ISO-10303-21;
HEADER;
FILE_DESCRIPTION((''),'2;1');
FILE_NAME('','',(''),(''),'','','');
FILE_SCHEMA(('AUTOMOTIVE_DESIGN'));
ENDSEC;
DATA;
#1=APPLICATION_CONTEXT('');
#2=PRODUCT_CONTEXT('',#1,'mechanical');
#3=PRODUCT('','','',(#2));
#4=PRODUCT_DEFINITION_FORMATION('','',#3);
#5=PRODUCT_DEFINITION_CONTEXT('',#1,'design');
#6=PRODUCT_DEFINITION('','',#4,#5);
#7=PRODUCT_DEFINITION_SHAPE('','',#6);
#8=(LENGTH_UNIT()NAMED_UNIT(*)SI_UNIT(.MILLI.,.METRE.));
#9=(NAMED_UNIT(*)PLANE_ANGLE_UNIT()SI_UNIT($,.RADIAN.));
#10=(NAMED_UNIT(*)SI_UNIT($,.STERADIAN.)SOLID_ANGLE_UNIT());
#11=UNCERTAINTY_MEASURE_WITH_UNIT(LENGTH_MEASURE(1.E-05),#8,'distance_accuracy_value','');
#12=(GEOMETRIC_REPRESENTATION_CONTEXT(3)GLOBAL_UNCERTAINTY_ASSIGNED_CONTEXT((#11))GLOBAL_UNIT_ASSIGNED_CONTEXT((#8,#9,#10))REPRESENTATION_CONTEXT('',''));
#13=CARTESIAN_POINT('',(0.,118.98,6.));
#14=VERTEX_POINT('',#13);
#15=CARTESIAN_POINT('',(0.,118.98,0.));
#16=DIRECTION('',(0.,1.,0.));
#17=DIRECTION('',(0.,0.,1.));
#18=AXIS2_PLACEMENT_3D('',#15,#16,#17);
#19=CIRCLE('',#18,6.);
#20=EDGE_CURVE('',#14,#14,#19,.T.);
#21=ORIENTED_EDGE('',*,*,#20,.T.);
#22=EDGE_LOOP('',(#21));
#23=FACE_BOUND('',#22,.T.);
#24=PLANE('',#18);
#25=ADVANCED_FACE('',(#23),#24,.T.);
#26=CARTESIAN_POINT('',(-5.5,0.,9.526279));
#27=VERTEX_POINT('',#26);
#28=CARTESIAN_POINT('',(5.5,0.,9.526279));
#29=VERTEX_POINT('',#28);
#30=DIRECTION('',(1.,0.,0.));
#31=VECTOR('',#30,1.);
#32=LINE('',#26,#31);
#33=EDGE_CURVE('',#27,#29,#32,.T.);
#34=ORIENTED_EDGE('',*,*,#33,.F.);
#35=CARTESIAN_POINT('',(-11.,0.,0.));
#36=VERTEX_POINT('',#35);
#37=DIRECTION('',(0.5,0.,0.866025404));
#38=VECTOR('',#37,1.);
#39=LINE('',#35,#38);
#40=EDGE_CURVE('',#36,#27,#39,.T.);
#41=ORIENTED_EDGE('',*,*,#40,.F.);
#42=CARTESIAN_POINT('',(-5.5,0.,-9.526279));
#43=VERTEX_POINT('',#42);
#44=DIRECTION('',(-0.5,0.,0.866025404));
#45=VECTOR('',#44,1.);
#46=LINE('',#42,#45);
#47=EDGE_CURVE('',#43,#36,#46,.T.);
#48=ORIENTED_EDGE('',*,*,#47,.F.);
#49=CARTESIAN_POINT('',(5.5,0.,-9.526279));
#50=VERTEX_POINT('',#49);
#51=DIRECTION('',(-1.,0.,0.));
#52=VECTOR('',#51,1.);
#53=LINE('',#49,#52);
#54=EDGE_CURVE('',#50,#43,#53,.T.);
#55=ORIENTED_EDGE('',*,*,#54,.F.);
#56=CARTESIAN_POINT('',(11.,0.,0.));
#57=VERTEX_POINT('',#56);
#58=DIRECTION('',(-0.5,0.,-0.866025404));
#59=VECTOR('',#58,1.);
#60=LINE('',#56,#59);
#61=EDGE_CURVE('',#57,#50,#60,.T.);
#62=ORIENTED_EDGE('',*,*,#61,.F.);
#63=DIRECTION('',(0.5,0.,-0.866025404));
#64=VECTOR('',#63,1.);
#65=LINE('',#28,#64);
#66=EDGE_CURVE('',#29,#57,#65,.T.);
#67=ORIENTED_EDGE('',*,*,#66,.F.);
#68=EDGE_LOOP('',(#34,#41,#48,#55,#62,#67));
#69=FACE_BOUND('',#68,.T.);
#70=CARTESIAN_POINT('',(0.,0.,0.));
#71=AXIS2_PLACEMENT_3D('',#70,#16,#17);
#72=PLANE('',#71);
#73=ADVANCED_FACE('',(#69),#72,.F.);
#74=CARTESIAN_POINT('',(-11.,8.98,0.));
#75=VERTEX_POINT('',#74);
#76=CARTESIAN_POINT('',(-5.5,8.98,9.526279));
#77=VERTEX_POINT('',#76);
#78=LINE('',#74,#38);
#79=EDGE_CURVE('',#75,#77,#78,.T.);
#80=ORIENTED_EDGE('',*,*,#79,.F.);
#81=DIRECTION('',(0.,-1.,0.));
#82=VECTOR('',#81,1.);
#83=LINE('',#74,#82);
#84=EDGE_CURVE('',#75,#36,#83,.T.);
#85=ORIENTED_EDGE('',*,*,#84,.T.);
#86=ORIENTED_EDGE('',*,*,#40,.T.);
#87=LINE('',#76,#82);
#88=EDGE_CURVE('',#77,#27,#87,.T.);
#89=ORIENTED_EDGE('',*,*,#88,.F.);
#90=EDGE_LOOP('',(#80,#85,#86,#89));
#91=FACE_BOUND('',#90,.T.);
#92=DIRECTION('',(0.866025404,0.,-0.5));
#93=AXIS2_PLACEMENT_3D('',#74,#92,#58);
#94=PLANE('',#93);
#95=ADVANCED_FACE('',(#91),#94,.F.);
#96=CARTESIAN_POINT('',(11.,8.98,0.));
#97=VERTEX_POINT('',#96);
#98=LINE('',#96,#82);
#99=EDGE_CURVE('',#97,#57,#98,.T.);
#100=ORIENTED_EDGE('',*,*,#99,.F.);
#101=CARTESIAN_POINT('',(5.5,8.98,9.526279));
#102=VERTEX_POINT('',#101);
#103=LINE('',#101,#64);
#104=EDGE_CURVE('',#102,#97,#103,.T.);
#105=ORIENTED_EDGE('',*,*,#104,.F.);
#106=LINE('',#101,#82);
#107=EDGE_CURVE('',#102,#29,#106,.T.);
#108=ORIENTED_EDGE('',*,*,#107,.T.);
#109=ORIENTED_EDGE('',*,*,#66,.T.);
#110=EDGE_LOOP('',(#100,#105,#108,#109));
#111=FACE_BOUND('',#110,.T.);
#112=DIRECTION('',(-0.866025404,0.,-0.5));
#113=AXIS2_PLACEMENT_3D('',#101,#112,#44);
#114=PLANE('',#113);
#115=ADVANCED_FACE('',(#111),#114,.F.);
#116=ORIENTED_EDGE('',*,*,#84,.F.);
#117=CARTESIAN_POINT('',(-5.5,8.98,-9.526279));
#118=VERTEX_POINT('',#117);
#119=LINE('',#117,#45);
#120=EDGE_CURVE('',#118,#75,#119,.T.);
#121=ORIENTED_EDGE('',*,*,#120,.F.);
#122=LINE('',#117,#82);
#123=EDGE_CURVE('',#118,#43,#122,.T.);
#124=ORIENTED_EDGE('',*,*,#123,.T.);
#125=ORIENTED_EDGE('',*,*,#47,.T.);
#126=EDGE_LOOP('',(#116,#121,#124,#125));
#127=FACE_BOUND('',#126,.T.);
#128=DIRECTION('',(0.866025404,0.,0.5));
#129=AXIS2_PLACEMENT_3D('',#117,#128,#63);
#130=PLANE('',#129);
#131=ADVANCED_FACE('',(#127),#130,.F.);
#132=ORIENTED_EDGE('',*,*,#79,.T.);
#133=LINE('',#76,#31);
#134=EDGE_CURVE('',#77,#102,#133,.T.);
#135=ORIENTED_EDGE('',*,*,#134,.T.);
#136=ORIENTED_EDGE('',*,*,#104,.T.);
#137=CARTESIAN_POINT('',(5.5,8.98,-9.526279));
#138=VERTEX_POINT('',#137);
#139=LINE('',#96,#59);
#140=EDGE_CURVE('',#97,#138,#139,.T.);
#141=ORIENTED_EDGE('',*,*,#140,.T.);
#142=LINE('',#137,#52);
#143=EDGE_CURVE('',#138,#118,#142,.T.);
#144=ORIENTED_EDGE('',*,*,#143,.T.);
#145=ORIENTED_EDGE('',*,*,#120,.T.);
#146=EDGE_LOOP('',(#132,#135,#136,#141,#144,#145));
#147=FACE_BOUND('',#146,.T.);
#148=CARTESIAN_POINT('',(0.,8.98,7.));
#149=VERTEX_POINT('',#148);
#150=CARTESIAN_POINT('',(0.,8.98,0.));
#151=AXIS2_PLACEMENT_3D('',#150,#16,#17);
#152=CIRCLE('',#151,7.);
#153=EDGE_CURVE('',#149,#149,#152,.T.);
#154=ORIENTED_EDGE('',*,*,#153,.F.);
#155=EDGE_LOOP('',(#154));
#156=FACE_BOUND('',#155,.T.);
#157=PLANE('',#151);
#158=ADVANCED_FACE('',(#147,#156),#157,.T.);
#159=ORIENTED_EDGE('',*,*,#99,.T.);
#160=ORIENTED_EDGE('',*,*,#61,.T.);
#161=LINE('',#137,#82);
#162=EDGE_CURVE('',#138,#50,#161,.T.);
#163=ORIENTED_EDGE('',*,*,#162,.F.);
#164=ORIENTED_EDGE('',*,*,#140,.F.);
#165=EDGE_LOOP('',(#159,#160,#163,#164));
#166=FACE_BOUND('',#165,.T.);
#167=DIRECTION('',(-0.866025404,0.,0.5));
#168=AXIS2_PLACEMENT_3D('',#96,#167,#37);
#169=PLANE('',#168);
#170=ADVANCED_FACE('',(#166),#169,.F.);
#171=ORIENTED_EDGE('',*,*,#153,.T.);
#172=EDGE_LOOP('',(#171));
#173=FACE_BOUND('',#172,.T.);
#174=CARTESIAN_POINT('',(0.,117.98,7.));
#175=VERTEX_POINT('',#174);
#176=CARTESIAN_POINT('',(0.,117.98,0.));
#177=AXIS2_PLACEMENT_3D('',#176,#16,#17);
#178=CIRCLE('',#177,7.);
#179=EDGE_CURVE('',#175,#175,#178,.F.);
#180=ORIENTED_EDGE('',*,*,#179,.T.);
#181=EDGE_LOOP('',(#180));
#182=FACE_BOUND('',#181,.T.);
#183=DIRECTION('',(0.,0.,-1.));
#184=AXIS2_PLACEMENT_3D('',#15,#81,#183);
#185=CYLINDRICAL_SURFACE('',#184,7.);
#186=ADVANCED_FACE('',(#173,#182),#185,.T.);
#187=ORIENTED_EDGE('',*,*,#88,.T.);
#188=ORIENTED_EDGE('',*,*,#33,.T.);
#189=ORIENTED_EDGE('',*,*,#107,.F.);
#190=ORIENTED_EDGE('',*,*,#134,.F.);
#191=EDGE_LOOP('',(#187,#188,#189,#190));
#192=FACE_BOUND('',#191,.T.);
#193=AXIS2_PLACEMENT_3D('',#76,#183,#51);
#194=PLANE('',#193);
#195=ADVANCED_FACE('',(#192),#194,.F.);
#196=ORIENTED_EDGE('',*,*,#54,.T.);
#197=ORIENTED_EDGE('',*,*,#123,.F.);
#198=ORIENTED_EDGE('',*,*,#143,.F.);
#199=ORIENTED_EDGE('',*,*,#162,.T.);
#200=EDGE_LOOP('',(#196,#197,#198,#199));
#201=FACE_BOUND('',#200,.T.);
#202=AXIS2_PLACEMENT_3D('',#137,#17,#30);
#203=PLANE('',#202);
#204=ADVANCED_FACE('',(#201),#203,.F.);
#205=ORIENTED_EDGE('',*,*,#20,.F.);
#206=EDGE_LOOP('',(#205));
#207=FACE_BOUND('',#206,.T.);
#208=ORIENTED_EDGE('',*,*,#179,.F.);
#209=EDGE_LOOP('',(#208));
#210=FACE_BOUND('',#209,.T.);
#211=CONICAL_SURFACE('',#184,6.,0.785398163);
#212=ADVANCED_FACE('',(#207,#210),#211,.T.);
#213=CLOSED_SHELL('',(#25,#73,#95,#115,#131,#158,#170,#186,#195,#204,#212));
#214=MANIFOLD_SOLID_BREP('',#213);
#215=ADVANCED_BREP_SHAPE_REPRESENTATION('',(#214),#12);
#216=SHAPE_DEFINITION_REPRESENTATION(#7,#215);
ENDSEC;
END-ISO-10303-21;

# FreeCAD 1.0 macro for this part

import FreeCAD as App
import Part
import Sketcher
from FreeCAD import Vector
Q = App.Units.Quantity


def edges_at(feature, points):
    """Names of the edges that pass closest to the given points."""
    edges = feature.Shape.Edges
    near = lambda p: min(range(len(edges)), key=lambda i: edges[i].distToShape(Part.Vertex(*p))[0])
    return sorted({f"Edge{near(p) + 1}" for p in points})

doc = App.newDocument("Part")
body = doc.addObject("PartDesign::Body", "Body")

# Sketch on XZ plane
sketch1 = doc.addObject("Sketcher::SketchObject", "Sketch")
body.addObject(sketch1)
sketch1.AttachmentSupport = (doc.XZ_Plane, [""])
sketch1.MapMode = "FlatFace"
sketch1.addGeometry([
    Part.LineSegment(Vector(11, 0, 0), Vector(5.5, -9.526279, 0)),  # 0
    Part.LineSegment(Vector(5.5, -9.526279, 0), Vector(-5.5, -9.526279, 0)),  # 1
    Part.LineSegment(Vector(-5.5, -9.526279, 0), Vector(-11, 0, 0)),  # 2
    Part.LineSegment(Vector(-11, 0, 0), Vector(-5.5, 9.526279, 0)),  # 3
    Part.LineSegment(Vector(-5.5, 9.526279, 0), Vector(5.5, 9.526279, 0)),  # 4
    Part.LineSegment(Vector(5.5, 9.526279, 0), Vector(11, 0, 0)),  # 5
], False)
sketch1.addConstraint([
    Sketcher.Constraint("Coincident", 0, 2, 1, 1),
    Sketcher.Constraint("Coincident", 1, 2, 2, 1),
    Sketcher.Constraint("Coincident", 2, 2, 3, 1),
    Sketcher.Constraint("Coincident", 3, 2, 4, 1),
    Sketcher.Constraint("Coincident", 4, 2, 5, 1),
    Sketcher.Constraint("Coincident", 5, 2, 0, 1),
    Sketcher.Constraint("Horizontal", 1),
    Sketcher.Constraint("Horizontal", 4),
    Sketcher.Constraint("Symmetric", 0, 2, 3, 2, -1, 1),
    Sketcher.Constraint("Symmetric", 2, 2, 5, 2, -1, 1),
    Sketcher.Constraint("PointOnObject", 2, 2, -1),
    Sketcher.Constraint("Parallel", 2, 5),
    Sketcher.Constraint("Vertical", 1, 2, 3, 2),
    Sketcher.Constraint("DistanceX", 1, 2, 1, 1, 11.0),
    Sketcher.Constraint("Angle", 0, Q("-120 deg")),
    Sketcher.Constraint("Distance", 0, 11.0),
])
pad1 = doc.addObject("PartDesign::Pad", "Pad")
body.addObject(pad1)
pad1.Profile = sketch1
pad1.Length = 8.98
pad1.Reversed = True

# Sketch on XZ plane
sketch2 = doc.addObject("Sketcher::SketchObject", "Sketch001")
body.addObject(sketch2)
sketch2.AttachmentSupport = (doc.XZ_Plane, [""])
sketch2.MapMode = "FlatFace"
sketch2.AttachmentOffset = App.Placement(Vector(0, 0, -8.98), App.Rotation())
sketch2.addGeometry(Part.Circle(Vector(0, 0, 0), Vector(0, 0, 1), 7), False)
sketch2.addConstraint([
    Sketcher.Constraint("Coincident", 0, 3, -1, 1),
    Sketcher.Constraint("Diameter", 0, 14.0),
])
pad2 = doc.addObject("PartDesign::Pad", "Pad001")
body.addObject(pad2)
pad2.Profile = sketch2
pad2.Length = 110
pad2.Reversed = True
doc.recompute()

chamfer = doc.addObject("PartDesign::Chamfer", "Chamfer")
body.addObject(chamfer)
chamfer.Base = (pad2, edges_at(pad2, [(0, 118.98, -7)]))
chamfer.Size = 1

doc.recompute()
